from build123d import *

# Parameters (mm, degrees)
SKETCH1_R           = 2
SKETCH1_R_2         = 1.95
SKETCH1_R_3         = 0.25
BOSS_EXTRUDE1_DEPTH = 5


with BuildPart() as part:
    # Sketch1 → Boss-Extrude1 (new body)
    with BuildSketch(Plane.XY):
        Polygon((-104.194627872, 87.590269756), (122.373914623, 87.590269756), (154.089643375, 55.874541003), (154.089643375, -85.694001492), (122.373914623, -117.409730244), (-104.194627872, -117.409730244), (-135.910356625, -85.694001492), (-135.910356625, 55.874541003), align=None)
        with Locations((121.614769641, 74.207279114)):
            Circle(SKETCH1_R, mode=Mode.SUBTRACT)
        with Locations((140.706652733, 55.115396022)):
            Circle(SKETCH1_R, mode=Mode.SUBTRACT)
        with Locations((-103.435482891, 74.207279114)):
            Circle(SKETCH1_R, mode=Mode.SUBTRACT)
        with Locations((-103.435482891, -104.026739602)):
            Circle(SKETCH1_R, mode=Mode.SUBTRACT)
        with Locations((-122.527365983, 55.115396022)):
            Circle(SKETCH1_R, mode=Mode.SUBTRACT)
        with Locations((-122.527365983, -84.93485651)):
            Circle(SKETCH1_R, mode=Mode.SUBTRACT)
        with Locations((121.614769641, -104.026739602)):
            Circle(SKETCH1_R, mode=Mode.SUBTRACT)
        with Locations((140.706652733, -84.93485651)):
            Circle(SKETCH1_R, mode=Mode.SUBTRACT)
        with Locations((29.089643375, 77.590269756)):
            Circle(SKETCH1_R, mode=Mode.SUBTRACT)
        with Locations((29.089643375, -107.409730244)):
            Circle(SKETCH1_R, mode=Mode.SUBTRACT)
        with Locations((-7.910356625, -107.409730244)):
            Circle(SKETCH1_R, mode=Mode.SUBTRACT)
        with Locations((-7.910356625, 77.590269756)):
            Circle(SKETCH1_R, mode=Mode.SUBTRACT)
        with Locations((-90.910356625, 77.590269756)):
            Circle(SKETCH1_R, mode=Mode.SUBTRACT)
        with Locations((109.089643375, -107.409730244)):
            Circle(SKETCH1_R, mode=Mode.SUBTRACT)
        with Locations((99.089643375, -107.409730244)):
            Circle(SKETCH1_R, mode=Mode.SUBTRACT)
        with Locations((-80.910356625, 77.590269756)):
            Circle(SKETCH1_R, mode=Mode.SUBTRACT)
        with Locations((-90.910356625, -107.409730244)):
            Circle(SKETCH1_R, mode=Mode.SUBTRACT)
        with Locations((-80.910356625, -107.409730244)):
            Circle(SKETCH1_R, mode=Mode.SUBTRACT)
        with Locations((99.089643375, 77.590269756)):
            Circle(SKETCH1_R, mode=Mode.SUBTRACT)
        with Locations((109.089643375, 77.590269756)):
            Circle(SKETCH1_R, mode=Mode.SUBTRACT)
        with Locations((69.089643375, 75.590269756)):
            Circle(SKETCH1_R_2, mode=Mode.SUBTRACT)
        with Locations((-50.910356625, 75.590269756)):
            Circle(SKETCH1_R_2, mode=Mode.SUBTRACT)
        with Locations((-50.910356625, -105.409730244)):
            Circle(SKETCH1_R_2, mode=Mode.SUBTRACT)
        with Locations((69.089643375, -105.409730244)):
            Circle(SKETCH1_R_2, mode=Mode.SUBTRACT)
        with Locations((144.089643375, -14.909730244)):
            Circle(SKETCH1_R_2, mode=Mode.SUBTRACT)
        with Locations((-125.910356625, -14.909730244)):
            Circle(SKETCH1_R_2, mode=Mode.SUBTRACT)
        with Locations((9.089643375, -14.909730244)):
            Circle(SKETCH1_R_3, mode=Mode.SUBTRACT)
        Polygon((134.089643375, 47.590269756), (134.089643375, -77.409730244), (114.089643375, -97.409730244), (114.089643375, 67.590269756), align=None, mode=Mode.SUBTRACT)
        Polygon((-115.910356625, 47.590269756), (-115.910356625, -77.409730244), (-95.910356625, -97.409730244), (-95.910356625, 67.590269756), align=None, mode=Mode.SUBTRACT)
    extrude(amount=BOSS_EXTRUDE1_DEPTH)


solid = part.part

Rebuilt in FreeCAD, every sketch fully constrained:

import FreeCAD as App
import Part
import Sketcher

V = App.Vector


def add_polygon(sketch, points):
    """Adds a closed chain of lines whose ends are joined by coincident constraints."""
    first, n = sketch.GeometryCount, len(points)
    for a, b in zip(points, points[1:] + points[:1]):
        sketch.addGeometry(Part.LineSegment(App.Vector(*a, 0), App.Vector(*b, 0)), False)
    for i in range(n):
        sketch.addConstraint(Sketcher.Constraint("Coincident", first + i, 2, first + (i + 1) % n, 1))

doc = App.newDocument("Part")
body = doc.addObject("PartDesign::Body", "Body")

# Sketch on XY plane
sketch1 = body.newObject("Sketcher::SketchObject", "Sketch")
sketch1.AttachmentSupport = (doc.getObject("XY_Plane"), [""])
sketch1.MapMode = "FlatFace"
add_polygon(sketch1, [(122.373915, 87.59027), (-104.194628, 87.59027), (-135.910357, 55.874541), (-135.910357, -85.694001), (-104.194628, -117.40973), (122.373915, -117.40973), (154.089643, -85.694001), (154.089643, 55.874541)])  # lines 0-7
sketch1.addGeometry(Part.Circle(V(121.61477, -104.02674, 0), V(0, 0, 1), 2), False)  # 8
sketch1.addGeometry(Part.Circle(V(109.089643, -107.40973, 0), V(0, 0, 1), 2), False)  # 9
sketch1.addGeometry(Part.Circle(V(99.089643, -107.40973, 0), V(0, 0, 1), 2), False)  # 10
sketch1.addGeometry(Part.Circle(V(140.706653, -84.934857, 0), V(0, 0, 1), 2), False)  # 11
sketch1.addGeometry(Part.Circle(V(69.089643, -105.40973, 0), V(0, 0, 1), 1.95), False)  # 12
sketch1.addGeometry(Part.Circle(V(29.089643, -107.40973, 0), V(0, 0, 1), 2), False)  # 13
sketch1.addGeometry(Part.Circle(V(-7.910357, -107.40973, 0), V(0, 0, 1), 2), False)  # 14
sketch1.addGeometry(Part.Circle(V(-50.910357, -105.40973, 0), V(0, 0, 1), 1.95), False)  # 15
sketch1.addGeometry(Part.Circle(V(-80.910357, -107.40973, 0), V(0, 0, 1), 2), False)  # 16
sketch1.addGeometry(Part.Circle(V(-90.910357, -107.40973, 0), V(0, 0, 1), 2), False)  # 17
sketch1.addGeometry(Part.Circle(V(-103.435483, -104.02674, 0), V(0, 0, 1), 2), False)  # 18
sketch1.addGeometry(Part.Circle(V(-122.527366, -84.934857, 0), V(0, 0, 1), 2), False)  # 19
sketch1.addGeometry(Part.Circle(V(144.089643, -14.90973, 0), V(0, 0, 1), 1.95), False)  # 20
add_polygon(sketch1, [(134.089643, 47.59027), (134.089643, -77.40973), (114.089643, -97.40973), (114.089643, 67.59027)])  # lines 21-24
sketch1.addGeometry(Part.Circle(V(140.706653, 55.115396, 0), V(0, 0, 1), 2), False)  # 25
sketch1.addGeometry(Part.Circle(V(121.61477, 74.207279, 0), V(0, 0, 1), 2), False)  # 26
sketch1.addGeometry(Part.Circle(V(109.089643, 77.59027, 0), V(0, 0, 1), 2), False)  # 27
sketch1.addGeometry(Part.Circle(V(99.089643, 77.59027, 0), V(0, 0, 1), 2), False)  # 28
sketch1.addGeometry(Part.Circle(V(69.089643, 75.59027, 0), V(0, 0, 1), 1.95), False)  # 29
sketch1.addGeometry(Part.Circle(V(29.089643, 77.59027, 0), V(0, 0, 1), 2), False)  # 30
sketch1.addGeometry(Part.Circle(V(9.089643, -14.90973, 0), V(0, 0, 1), 0.25), False)  # 31
add_polygon(sketch1, [(-115.910357, 47.59027), (-95.910357, 67.59027), (-95.910357, -97.40973), (-115.910357, -77.40973)])  # lines 32-35
sketch1.addGeometry(Part.Circle(V(-125.910357, -14.90973, 0), V(0, 0, 1), 1.95), False)  # 36
sketch1.addGeometry(Part.Circle(V(-7.910357, 77.59027, 0), V(0, 0, 1), 2), False)  # 37
sketch1.addGeometry(Part.Circle(V(-50.910357, 75.59027, 0), V(0, 0, 1), 1.95), False)  # 38
sketch1.addGeometry(Part.Circle(V(-122.527366, 55.115396, 0), V(0, 0, 1), 2), False)  # 39
sketch1.addGeometry(Part.Circle(V(-80.910357, 77.59027, 0), V(0, 0, 1), 2), False)  # 40
sketch1.addGeometry(Part.Circle(V(-90.910357, 77.59027, 0), V(0, 0, 1), 2), False)  # 41
sketch1.addGeometry(Part.Circle(V(-103.435483, 74.207279, 0), V(0, 0, 1), 2), False)  # 42
sketch1.addConstraint(Sketcher.Constraint("Horizontal", 0))
sketch1.addConstraint(Sketcher.Constraint("Vertical", 2))
sketch1.addConstraint(Sketcher.Constraint("Horizontal", 4))
sketch1.addConstraint(Sketcher.Constraint("Vertical", 6))
sketch1.addConstraint(Sketcher.Constraint("Vertical", 21))
sketch1.addConstraint(Sketcher.Constraint("Vertical", 23))
sketch1.addConstraint(Sketcher.Constraint("Vertical", 33))
sketch1.addConstraint(Sketcher.Constraint("Vertical", 35))
sketch1.addConstraint(Sketcher.Constraint("Equal", 8, 9))
sketch1.addConstraint(Sketcher.Constraint("Equal", 9, 10))
sketch1.addConstraint(Sketcher.Constraint("Equal", 10, 11))
sketch1.addConstraint(Sketcher.Constraint("Equal", 11, 13))
sketch1.addConstraint(Sketcher.Constraint("Equal", 13, 14))
sketch1.addConstraint(Sketcher.Constraint("Equal", 12, 15))
sketch1.addConstraint(Sketcher.Constraint("Equal", 14, 16))
sketch1.addConstraint(Sketcher.Constraint("Equal", 16, 17))
sketch1.addConstraint(Sketcher.Constraint("Equal", 17, 18))
sketch1.addConstraint(Sketcher.Constraint("Equal", 18, 19))
sketch1.addConstraint(Sketcher.Constraint("Equal", 15, 20))
sketch1.addConstraint(Sketcher.Constraint("Equal", 19, 25))
sketch1.addConstraint(Sketcher.Constraint("Equal", 25, 26))
sketch1.addConstraint(Sketcher.Constraint("Equal", 26, 27))
sketch1.addConstraint(Sketcher.Constraint("Equal", 27, 28))
sketch1.addConstraint(Sketcher.Constraint("Equal", 20, 29))
sketch1.addConstraint(Sketcher.Constraint("Equal", 28, 30))
sketch1.addConstraint(Sketcher.Constraint("Equal", 29, 36))
sketch1.addConstraint(Sketcher.Constraint("Equal", 30, 37))
sketch1.addConstraint(Sketcher.Constraint("Equal", 36, 38))
sketch1.addConstraint(Sketcher.Constraint("Equal", 37, 39))
sketch1.addConstraint(Sketcher.Constraint("Equal", 39, 40))
sketch1.addConstraint(Sketcher.Constraint("Equal", 40, 41))
sketch1.addConstraint(Sketcher.Constraint("Equal", 41, 42))
sketch1.addConstraint(Sketcher.Constraint("Perpendicular", 1, 3))
sketch1.addConstraint(Sketcher.Constraint("Perpendicular", 3, 5))
sketch1.addConstraint(Sketcher.Constraint("Perpendicular", 5, 7))
sketch1.addConstraint(Sketcher.Constraint("Perpendicular", 7, 22))
sketch1.addConstraint(Sketcher.Constraint("Perpendicular", 22, 24))
sketch1.addConstraint(Sketcher.Constraint("Perpendicular", 24, 32))
sketch1.addConstraint(Sketcher.Constraint("Perpendicular", 32, 34))
sketch1.addConstraint(Sketcher.Constraint("Horizontal", 9, 3, 10, 3))
sketch1.addConstraint(Sketcher.Constraint("Horizontal", 10, 3, 13, 3))
sketch1.addConstraint(Sketcher.Constraint("Horizontal", 13, 3, 14, 3))
sketch1.addConstraint(Sketcher.Constraint("Horizontal", 12, 3, 15, 3))
sketch1.addConstraint(Sketcher.Constraint("Horizontal", 14, 3, 16, 3))
sketch1.addConstraint(Sketcher.Constraint("Horizontal", 16, 3, 17, 3))
sketch1.addConstraint(Sketcher.Constraint("Horizontal", 8, 3, 18, 3))
sketch1.addConstraint(Sketcher.Constraint("Horizontal", 11, 3, 19, 3))
sketch1.addConstraint(Sketcher.Constraint("Horizontal", 27, 3, 28, 3))
sketch1.addConstraint(Sketcher.Constraint("Horizontal", 28, 3, 30, 3))
sketch1.addConstraint(Sketcher.Constraint("Horizontal", 20, 3, 31, 3))
sketch1.addConstraint(Sketcher.Constraint("Horizontal", 31, 3, 36, 3))
sketch1.addConstraint(Sketcher.Constraint("Horizontal", 30, 3, 37, 3))
sketch1.addConstraint(Sketcher.Constraint("Horizontal", 29, 3, 38, 3))
sketch1.addConstraint(Sketcher.Constraint("Horizontal", 25, 3, 39, 3))
sketch1.addConstraint(Sketcher.Constraint("Horizontal", 37, 3, 40, 3))
sketch1.addConstraint(Sketcher.Constraint("Horizontal", 40, 3, 41, 3))
sketch1.addConstraint(Sketcher.Constraint("Horizontal", 26, 3, 42, 3))
sketch1.addConstraint(Sketcher.Constraint("Horizontal", 2, 2, 5, 2))
sketch1.addConstraint(Sketcher.Constraint("Horizontal", 1, 2, 6, 2))
sketch1.addConstraint(Sketcher.Constraint("Horizontal", 23, 2, 32, 2))
sketch1.addConstraint(Sketcher.Constraint("Horizontal", 22, 2, 33, 2))
sketch1.addConstraint(Sketcher.Constraint("Horizontal", 21, 2, 34, 2))
sketch1.addConstraint(Sketcher.Constraint("Horizontal", 24, 2, 35, 2))
sketch1.addConstraint(Sketcher.Constraint("Vertical", 11, 3, 25, 3))
sketch1.addConstraint(Sketcher.Constraint("Vertical", 8, 3, 26, 3))
sketch1.addConstraint(Sketcher.Constraint("Vertical", 9, 3, 27, 3))
sketch1.addConstraint(Sketcher.Constraint("Vertical", 10, 3, 28, 3))
sketch1.addConstraint(Sketcher.Constraint("Vertical", 12, 3, 29, 3))
sketch1.addConstraint(Sketcher.Constraint("Vertical", 13, 3, 30, 3))
sketch1.addConstraint(Sketcher.Constraint("Vertical", 14, 3, 37, 3))
sketch1.addConstraint(Sketcher.Constraint("Vertical", 15, 3, 38, 3))
sketch1.addConstraint(Sketcher.Constraint("Vertical", 19, 3, 39, 3))
sketch1.addConstraint(Sketcher.Constraint("Vertical", 16, 3, 40, 3))
sketch1.addConstraint(Sketcher.Constraint("Vertical", 17, 3, 41, 3))
sketch1.addConstraint(Sketcher.Constraint("Vertical", 18, 3, 42, 3))
sketch1.addConstraint(Sketcher.Constraint("Vertical", 0, 2, 3, 2))
sketch1.addConstraint(Sketcher.Constraint("Diameter", 8, 4.0))
sketch1.addConstraint(Sketcher.Constraint("Diameter", 12, 3.9))
sketch1.addConstraint(Sketcher.Constraint("Diameter", 31, 0.5))
sketch1.addConstraint(Sketcher.Constraint("DistanceY", 21, 2, 21, 1, 125.0))
sketch1.addConstraint(Sketcher.Constraint("DistanceY", 23, 1, 23, 2, 165.0))
sketch1.addConstraint(Sketcher.Constraint("DistanceX", 10, 3, 9, 3, 10.0))
sketch1.addConstraint(Sketcher.Constraint("DistanceX", 12, 3, 10, 3, 30.0))
sketch1.addConstraint(Sketcher.Constraint("DistanceY", 10, 3, 12, 3, 2.0))
sketch1.addConstraint(Sketcher.Constraint("DistanceX", 13, 3, 12, 3, 40.0))
sketch1.addConstraint(Sketcher.Constraint("DistanceX", 14, 3, 13, 3, 37.0))
sketch1.addConstraint(Sketcher.Constraint("DistanceX", 15, 3, 14, 3, 43.0))
sketch1.addConstraint(Sketcher.Constraint("DistanceX", 16, 3, 15, 3, 30.0))
sketch1.addConstraint(Sketcher.Constraint("DistanceX", 17, 3, 16, 3, 10.0))
sketch1.addConstraint(Sketcher.Constraint("DistanceX", 9, 3, 20, 3, 35.0))
sketch1.addConstraint(Sketcher.Constraint("DistanceY", 29, 3, 28, 3, 2.0))
sketch1.addConstraint(Sketcher.Constraint("DistanceX", 14, 3, 31, 3, 17.0))
sketch1.addConstraint(Sketcher.Constraint("DistanceX", 36, 3, 17, 3, 35.0))
sketch1.addConstraint(Sketcher.Constraint("DistanceY", 41, 3, 0, 2, 10.0))
sketch1.addConstraint(Sketcher.Constraint("DistanceX", 1, 2, 41, 3, 45.0))
sketch1.addConstraint(Sketcher.Constraint("DistanceY", 3, 2, 17, 3, 10.0))
sketch1.addConstraint(Sketcher.Constraint("DistanceX", 9, 3, 5, 2, 45.0))
sketch1.addConstraint(Sketcher.Constraint("DistanceX", 21, 2, 5, 2, 20.0))
sketch1.addConstraint(Sketcher.Constraint("DistanceY", 9, 3, 21, 2, 30.0))
sketch1.addConstraint(Sketcher.Constraint("DistanceY", 23, 2, 27, 3, 10.0))
sketch1.addConstraint(Sketcher.Constraint("DistanceX", 32, 2, 41, 3, 5.0))
sketch1.addConstraint(Sketcher.Constraint("DistanceY", 9, 3, 20, 3, 92.5))
sketch1.addConstraint(Sketcher.Constraint("DistanceY", 2, 2, -1, 1, 85.694001))
sketch1.addConstraint(Sketcher.Constraint("DistanceX", 0, 2, 0, 1, 226.568542))
sketch1.addConstraint(Sketcher.Constraint("DistanceX", -1, 1, 8, 3, 121.61477))
sketch1.addConstraint(Sketcher.Constraint("DistanceY", 8, 3, -1, 1, 104.02674))
sketch1.addConstraint(Sketcher.Constraint("DistanceY", -1, 1, 26, 3, 74.207279))
sketch1.addConstraint(Sketcher.Constraint("DistanceX", 9, 3, 11, 3, 31.617009))
sketch1.addConstraint(Sketcher.Constraint("DistanceX", 19, 3, 17, 3, 31.617009))
sketch1.addConstraint(Sketcher.Constraint("DistanceX", -1, 1, 9, 3, 109.089643))
sketch1.addConstraint(Sketcher.Constraint("DistanceY", 11, 3, -1, 1, 84.934857))
sketch1.addConstraint(Sketcher.Constraint("DistanceX", 18, 3, -1, 1, 103.435483))
sketch1.addConstraint(Sketcher.Constraint("DistanceY", -1, 1, 25, 3, 55.115396))
pad1 = body.newObject("PartDesign::Pad", "Pad")
pad1.Profile = sketch1
pad1.Length = 5

doc.recompute()
